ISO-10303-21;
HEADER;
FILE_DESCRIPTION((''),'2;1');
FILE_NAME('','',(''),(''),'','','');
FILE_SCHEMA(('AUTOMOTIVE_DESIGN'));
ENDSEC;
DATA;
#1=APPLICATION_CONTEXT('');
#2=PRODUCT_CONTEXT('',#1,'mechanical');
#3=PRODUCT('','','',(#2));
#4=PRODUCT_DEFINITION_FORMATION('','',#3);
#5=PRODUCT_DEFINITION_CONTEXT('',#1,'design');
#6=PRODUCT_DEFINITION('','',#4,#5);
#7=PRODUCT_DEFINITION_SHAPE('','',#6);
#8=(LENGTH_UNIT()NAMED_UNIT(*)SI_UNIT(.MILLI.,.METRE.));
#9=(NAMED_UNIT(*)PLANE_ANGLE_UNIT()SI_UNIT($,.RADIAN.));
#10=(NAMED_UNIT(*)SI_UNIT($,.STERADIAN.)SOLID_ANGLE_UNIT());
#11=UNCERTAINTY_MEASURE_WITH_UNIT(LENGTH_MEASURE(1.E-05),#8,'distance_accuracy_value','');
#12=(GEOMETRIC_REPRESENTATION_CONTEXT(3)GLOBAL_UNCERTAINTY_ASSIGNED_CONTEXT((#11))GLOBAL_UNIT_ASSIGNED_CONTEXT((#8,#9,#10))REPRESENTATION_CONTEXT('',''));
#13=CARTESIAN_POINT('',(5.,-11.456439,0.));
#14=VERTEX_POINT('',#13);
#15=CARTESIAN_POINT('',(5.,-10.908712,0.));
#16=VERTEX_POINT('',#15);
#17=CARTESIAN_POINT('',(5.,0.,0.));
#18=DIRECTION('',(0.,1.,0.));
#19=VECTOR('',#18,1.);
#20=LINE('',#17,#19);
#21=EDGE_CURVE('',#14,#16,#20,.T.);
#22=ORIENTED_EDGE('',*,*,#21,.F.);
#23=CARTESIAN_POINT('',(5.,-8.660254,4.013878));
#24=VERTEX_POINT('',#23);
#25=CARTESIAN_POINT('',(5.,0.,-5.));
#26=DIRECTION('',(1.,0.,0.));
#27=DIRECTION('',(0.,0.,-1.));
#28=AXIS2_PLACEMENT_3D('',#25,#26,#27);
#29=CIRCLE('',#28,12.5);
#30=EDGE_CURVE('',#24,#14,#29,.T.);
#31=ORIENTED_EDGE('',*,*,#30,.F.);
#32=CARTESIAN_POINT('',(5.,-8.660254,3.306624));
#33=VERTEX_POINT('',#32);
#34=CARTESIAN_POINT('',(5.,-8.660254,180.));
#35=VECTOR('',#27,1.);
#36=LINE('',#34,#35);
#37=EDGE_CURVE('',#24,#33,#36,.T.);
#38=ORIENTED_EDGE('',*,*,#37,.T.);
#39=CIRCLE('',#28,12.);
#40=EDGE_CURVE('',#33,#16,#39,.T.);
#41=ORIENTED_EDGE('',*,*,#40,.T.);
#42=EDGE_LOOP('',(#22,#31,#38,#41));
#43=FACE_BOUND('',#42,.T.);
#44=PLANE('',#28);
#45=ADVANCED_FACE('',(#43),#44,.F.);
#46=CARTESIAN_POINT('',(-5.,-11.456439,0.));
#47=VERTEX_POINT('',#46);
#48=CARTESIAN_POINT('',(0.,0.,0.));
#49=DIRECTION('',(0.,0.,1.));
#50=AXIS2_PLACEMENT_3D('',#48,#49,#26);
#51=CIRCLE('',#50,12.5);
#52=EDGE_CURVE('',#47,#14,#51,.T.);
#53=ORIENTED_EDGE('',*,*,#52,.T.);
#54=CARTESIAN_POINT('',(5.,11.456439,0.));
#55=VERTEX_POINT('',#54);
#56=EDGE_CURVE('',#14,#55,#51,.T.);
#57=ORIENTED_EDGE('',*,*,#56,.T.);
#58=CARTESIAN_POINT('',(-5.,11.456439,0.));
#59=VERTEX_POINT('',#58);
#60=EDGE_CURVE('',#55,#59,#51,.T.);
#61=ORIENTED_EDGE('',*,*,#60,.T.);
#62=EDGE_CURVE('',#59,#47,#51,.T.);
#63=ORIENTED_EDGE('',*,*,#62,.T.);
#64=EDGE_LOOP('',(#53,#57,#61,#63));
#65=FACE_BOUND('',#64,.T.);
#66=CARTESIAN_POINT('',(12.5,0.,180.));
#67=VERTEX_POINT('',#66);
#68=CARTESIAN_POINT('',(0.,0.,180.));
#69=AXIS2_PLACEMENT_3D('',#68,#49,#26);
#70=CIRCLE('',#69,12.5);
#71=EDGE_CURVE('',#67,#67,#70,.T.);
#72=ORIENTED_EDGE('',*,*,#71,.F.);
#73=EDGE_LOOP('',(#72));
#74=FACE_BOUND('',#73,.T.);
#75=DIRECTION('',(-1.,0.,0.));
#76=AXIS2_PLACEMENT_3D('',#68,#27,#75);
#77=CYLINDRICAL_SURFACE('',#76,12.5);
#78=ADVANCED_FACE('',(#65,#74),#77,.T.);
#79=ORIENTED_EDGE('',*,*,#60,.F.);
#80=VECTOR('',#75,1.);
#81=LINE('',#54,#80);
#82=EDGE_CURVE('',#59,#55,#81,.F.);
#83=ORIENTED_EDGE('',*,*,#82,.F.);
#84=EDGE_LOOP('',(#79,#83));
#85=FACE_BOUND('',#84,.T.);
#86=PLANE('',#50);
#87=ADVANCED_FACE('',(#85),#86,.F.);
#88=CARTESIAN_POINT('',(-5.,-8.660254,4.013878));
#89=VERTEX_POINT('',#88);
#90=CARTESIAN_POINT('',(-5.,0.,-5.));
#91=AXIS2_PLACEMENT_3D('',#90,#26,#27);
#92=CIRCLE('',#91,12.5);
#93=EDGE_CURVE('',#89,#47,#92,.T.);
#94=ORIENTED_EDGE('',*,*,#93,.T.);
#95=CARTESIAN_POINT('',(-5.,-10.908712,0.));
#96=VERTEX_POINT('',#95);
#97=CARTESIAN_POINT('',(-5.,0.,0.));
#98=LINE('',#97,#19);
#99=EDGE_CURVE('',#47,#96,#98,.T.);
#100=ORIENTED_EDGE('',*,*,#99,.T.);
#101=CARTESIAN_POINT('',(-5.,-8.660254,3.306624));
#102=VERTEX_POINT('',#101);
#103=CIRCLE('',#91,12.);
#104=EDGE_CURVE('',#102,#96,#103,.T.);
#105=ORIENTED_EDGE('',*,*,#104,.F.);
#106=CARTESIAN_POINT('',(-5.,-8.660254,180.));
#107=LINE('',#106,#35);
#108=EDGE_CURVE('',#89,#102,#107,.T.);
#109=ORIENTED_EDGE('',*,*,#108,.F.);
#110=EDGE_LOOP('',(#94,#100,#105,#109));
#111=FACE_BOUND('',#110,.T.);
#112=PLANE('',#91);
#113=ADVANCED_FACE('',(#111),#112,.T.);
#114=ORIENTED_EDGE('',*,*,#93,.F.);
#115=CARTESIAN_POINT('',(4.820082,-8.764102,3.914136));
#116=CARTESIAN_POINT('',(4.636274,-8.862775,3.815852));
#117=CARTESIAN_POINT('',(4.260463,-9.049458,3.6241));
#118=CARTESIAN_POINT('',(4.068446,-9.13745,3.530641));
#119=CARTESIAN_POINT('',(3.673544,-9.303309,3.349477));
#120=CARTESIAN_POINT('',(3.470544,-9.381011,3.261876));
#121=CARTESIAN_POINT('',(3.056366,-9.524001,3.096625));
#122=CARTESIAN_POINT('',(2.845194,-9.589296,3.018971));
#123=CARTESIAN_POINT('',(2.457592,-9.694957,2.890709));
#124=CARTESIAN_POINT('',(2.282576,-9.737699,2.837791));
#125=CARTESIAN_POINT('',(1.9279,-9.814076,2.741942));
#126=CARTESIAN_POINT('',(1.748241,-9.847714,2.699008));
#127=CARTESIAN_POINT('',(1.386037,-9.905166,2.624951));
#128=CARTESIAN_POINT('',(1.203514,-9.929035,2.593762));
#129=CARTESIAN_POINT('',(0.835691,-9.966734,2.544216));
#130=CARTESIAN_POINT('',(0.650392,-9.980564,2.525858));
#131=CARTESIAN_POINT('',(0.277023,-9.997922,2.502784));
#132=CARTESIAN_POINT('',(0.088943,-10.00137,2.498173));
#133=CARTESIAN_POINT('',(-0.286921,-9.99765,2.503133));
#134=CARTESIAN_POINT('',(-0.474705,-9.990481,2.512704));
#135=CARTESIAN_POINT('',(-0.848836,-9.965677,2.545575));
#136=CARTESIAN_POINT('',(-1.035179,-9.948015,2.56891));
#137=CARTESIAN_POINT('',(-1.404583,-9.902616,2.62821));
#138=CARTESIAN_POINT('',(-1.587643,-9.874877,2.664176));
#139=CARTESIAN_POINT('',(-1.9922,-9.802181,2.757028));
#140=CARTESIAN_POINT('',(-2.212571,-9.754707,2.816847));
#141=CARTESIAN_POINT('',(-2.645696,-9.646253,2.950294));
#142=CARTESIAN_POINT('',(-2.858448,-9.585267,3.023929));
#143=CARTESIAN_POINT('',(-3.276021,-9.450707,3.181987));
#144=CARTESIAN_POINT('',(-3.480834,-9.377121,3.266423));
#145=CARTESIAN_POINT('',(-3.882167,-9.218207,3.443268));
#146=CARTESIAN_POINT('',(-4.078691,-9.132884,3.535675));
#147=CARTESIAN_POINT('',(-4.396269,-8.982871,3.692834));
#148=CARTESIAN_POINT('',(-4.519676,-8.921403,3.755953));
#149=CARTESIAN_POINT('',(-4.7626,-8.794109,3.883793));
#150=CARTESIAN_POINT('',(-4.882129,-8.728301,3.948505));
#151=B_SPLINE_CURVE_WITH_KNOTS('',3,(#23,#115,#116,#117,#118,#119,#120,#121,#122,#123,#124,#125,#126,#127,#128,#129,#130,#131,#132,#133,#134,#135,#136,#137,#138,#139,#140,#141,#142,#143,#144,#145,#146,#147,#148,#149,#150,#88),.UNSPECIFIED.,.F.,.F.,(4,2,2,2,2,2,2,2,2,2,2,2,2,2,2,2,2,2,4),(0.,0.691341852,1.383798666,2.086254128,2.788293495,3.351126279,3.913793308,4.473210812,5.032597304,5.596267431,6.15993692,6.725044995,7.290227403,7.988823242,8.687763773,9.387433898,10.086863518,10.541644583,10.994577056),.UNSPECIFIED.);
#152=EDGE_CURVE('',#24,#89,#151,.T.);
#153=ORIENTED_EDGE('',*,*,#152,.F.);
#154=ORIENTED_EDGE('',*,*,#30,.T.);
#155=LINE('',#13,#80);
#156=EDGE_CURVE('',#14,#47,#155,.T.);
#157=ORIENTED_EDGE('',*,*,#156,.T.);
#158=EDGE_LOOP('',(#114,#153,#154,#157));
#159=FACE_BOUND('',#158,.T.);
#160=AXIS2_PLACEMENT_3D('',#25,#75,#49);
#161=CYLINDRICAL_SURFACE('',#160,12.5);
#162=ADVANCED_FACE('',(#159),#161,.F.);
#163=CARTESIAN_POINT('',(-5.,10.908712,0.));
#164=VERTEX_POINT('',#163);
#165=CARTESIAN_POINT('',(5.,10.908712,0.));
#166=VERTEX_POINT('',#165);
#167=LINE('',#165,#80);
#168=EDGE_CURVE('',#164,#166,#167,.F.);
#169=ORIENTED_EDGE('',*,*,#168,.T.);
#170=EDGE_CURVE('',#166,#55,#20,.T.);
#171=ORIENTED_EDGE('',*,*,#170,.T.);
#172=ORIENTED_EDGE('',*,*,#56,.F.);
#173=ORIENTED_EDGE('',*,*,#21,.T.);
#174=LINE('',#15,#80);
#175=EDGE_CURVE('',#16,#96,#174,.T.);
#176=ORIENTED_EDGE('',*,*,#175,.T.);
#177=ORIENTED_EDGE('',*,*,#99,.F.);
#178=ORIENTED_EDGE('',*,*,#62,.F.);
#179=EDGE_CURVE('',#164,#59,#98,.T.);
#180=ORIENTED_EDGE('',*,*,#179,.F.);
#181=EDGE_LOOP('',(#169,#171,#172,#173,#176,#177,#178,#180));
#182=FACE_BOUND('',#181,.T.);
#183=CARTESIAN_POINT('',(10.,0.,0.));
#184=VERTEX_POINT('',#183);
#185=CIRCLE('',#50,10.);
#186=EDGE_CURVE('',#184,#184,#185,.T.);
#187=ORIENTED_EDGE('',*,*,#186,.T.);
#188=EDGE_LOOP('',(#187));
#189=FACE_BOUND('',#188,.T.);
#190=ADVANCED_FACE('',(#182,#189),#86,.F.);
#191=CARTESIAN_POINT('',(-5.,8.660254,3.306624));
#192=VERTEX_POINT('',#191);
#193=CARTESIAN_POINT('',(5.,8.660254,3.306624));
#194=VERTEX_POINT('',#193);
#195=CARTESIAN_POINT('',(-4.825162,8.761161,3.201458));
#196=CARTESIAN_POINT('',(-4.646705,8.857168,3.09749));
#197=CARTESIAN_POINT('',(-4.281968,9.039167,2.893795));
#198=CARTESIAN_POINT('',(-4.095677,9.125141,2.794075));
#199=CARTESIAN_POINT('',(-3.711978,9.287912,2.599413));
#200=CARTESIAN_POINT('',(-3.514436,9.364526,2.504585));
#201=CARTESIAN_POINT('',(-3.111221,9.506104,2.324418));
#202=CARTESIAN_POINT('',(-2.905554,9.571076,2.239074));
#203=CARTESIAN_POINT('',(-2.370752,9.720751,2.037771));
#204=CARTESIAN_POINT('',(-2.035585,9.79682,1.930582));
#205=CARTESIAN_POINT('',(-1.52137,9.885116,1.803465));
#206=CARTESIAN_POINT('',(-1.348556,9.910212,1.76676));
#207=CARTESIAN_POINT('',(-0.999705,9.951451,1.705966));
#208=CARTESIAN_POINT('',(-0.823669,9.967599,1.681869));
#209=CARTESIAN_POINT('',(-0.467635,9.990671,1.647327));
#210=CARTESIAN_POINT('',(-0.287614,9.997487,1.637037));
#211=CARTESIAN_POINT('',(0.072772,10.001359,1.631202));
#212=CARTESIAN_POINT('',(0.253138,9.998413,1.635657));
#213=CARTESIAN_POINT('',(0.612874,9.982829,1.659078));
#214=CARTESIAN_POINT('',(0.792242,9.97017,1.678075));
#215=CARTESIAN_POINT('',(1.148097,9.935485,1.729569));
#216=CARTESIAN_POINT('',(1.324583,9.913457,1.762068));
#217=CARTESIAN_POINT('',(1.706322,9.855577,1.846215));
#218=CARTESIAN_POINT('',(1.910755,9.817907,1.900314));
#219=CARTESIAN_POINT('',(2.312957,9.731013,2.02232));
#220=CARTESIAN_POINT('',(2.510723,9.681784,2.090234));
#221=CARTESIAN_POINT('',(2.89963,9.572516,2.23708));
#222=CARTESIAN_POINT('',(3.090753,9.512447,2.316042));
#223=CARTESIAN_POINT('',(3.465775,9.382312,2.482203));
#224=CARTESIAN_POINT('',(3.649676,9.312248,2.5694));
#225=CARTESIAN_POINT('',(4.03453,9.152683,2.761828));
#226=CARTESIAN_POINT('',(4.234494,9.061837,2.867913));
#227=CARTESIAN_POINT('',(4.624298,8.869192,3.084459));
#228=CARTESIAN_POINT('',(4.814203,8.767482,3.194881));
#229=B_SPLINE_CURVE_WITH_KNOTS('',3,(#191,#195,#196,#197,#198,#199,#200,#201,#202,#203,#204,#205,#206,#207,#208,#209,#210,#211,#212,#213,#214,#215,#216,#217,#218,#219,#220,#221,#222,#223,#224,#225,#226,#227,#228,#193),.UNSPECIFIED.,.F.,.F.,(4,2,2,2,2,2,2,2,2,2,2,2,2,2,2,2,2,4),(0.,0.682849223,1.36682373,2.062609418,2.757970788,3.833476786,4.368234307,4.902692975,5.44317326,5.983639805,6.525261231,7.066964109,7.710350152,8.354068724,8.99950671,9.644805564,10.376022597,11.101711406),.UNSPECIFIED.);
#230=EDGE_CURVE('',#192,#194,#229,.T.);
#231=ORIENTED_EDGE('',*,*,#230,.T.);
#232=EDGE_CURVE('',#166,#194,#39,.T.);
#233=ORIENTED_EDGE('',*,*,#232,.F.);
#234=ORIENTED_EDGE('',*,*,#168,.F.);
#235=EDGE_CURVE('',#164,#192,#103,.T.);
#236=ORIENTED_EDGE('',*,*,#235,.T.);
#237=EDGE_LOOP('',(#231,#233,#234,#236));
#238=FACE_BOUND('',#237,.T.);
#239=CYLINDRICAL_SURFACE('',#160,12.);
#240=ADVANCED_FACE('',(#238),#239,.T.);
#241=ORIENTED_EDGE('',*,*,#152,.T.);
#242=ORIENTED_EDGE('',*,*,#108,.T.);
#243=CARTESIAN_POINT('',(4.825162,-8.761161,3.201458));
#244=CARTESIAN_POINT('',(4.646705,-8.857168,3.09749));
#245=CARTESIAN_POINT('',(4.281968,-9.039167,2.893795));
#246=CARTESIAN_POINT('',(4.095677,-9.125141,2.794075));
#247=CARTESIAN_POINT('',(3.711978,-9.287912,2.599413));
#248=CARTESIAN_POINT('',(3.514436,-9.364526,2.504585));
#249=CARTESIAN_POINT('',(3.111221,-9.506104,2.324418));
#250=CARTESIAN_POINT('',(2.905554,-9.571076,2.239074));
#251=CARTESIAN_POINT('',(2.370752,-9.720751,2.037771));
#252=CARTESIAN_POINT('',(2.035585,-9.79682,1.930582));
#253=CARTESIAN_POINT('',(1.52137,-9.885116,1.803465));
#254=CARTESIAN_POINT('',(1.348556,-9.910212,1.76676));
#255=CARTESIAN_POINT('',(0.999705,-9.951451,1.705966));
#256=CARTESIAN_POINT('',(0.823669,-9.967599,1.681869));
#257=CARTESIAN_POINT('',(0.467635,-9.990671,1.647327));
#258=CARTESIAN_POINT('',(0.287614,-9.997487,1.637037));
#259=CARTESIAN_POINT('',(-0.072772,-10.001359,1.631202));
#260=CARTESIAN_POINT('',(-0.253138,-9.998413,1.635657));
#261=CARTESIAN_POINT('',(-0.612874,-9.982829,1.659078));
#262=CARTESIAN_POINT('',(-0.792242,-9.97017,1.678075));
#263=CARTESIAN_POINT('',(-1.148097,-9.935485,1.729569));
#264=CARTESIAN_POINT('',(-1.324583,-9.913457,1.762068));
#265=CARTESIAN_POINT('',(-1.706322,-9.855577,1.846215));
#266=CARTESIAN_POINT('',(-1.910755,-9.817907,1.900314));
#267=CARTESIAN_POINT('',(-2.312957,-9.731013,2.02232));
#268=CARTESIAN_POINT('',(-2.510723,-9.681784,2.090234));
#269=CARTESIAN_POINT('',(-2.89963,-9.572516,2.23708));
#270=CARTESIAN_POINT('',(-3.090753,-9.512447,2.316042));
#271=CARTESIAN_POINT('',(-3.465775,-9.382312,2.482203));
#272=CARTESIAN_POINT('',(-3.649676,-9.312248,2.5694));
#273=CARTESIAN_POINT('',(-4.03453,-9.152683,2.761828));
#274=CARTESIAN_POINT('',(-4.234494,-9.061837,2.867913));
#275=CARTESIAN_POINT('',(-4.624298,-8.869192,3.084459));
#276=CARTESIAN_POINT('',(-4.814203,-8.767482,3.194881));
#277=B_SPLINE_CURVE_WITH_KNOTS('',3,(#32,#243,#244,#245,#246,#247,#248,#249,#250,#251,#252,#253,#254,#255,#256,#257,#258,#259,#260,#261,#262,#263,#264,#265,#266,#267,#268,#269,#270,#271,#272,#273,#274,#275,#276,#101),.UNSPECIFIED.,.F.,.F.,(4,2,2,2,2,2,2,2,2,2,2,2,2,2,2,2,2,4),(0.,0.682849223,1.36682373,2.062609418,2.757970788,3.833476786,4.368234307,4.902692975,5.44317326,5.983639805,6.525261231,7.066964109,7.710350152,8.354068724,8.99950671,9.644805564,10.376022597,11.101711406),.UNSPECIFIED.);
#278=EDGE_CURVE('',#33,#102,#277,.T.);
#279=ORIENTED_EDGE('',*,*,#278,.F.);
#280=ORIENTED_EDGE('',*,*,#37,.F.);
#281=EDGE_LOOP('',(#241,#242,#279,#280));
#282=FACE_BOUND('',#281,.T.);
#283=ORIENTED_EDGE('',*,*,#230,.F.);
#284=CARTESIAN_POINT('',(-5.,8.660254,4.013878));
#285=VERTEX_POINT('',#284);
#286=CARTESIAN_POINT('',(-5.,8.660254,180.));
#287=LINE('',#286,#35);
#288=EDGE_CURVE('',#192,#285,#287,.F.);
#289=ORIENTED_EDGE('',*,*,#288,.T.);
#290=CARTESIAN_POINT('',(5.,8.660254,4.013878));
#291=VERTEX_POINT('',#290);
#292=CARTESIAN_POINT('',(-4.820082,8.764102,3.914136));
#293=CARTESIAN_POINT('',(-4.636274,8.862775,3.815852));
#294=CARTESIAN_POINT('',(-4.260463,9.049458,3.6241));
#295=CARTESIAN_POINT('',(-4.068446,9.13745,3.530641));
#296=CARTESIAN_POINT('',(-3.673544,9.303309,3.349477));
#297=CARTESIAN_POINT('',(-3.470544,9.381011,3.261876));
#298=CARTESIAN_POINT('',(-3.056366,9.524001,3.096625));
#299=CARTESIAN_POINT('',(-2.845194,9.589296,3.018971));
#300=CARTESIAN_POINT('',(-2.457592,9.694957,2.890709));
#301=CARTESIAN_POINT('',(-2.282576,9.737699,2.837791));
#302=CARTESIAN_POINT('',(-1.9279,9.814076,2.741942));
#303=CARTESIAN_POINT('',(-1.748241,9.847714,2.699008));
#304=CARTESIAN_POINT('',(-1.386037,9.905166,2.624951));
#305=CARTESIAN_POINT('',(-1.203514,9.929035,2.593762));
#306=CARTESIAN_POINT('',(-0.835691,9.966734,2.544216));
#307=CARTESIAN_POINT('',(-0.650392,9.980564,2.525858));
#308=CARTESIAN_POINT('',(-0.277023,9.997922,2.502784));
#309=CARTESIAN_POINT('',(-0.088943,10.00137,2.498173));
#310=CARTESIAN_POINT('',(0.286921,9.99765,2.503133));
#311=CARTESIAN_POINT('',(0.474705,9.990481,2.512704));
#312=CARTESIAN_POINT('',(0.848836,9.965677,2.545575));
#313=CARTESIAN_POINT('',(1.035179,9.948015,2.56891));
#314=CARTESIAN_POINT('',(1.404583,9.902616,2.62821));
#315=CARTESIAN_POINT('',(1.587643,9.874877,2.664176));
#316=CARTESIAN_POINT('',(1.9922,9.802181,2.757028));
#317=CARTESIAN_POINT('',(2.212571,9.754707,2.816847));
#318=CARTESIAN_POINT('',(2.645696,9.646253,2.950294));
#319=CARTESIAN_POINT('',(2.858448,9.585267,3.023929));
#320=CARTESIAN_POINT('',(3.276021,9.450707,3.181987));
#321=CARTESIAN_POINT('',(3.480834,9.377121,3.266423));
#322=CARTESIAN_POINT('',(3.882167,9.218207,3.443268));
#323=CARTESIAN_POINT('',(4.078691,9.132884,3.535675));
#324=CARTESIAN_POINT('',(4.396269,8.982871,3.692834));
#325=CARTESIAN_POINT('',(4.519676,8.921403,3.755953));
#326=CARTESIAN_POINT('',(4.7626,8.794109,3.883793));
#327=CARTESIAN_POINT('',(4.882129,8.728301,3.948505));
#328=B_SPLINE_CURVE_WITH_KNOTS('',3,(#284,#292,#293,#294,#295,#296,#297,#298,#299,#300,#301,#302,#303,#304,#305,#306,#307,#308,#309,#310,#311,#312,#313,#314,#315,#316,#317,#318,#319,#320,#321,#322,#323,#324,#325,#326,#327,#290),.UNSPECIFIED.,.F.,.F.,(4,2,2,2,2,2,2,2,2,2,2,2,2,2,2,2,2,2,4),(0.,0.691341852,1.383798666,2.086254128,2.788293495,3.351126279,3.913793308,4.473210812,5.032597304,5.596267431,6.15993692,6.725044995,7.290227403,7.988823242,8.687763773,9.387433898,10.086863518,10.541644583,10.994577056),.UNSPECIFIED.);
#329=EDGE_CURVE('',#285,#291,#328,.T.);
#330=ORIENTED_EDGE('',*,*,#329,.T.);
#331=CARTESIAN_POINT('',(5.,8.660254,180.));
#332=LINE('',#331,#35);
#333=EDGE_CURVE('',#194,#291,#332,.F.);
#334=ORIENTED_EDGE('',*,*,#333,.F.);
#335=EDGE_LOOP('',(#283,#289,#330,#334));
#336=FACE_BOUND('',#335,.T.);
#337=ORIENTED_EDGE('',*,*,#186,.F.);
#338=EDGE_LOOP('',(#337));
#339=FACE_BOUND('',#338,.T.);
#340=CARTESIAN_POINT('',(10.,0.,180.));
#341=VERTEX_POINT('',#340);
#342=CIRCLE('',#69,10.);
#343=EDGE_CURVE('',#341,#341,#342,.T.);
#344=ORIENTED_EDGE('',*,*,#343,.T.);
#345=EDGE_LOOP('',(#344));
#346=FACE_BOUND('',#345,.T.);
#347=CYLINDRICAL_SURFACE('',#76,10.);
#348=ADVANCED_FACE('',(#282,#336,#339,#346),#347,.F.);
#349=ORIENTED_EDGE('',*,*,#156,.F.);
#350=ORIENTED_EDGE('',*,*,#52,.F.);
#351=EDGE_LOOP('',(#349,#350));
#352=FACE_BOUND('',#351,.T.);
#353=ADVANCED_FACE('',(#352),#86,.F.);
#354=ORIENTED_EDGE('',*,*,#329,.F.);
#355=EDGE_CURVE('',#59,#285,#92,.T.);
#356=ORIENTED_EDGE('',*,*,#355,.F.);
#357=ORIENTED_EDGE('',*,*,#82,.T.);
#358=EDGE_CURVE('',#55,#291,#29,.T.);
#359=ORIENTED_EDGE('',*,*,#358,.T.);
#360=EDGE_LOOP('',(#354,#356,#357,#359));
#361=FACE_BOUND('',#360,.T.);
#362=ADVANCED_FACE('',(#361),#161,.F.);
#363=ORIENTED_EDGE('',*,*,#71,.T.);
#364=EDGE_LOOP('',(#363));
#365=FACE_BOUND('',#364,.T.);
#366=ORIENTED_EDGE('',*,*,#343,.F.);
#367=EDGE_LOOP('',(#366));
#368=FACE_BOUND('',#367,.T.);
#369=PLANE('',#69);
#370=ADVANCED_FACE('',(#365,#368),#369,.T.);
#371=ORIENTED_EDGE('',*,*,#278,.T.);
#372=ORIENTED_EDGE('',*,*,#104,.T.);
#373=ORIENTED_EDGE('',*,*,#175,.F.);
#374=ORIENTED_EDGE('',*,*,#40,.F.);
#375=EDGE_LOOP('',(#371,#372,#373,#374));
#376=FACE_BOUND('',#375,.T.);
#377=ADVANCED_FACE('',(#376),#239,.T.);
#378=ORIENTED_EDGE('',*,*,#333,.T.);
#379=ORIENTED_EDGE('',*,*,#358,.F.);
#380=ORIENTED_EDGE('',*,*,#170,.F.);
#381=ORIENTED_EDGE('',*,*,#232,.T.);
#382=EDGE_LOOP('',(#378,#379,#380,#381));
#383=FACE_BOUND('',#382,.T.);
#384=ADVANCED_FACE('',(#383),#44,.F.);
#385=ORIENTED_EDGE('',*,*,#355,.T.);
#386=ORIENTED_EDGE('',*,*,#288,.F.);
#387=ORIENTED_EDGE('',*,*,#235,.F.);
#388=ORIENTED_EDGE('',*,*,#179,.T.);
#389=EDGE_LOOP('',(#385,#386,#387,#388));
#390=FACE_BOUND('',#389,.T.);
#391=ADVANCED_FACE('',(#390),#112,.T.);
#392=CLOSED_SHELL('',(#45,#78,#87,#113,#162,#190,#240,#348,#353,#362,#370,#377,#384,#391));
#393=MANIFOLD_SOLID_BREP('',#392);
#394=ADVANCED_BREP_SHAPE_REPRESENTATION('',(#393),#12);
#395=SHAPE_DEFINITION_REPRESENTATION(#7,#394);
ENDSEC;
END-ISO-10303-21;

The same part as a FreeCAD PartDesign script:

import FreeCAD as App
import Part
import Sketcher
Q = App.Units.Quantity

doc = App.newDocument("Part")
body = doc.addObject("PartDesign::Body", "Body")

sketch1 = doc.addObject("Sketcher::SketchObject", "Sketch")
body.addObject(sketch1)
sketch1.AttachmentSupport = (doc.XY_Plane, [""])
sketch1.MapMode = "FlatFace"
sketch1.addGeometry(Part.Circle(App.Vector(0, 0, 0), App.Vector(0, 0, 1), 12), False)
sketch1.addGeometry(Part.Circle(App.Vector(0, 0, 0), App.Vector(0, 0, 1), 10), False)
sketch1.addConstraint(Sketcher.Constraint("Coincident", 0, 3, -1, 1))
sketch1.addConstraint(Sketcher.Constraint("Coincident", 1, 3, -1, 1))
sketch1.addConstraint(Sketcher.Constraint("Diameter", 0, Q("25 mm")))
sketch1.addConstraint(Sketcher.Constraint("Diameter", 1, Q("20 mm")))
pad1 = doc.addObject("PartDesign::Pad", "Pad")
body.addObject(pad1)
pad1.Profile = sketch1
pad1.Length = 180

sketch2 = doc.addObject("Sketcher::SketchObject", "Sketch001")
body.addObject(sketch2)
sketch2.AttachmentSupport = (doc.YZ_Plane, [""])
sketch2.MapMode = "FlatFace"
sketch2.addGeometry(Part.Circle(App.Vector(0, -5, 0), App.Vector(0, 0, 1), 12), False)
sketch2.addGeometry(Part.Circle(App.Vector(0, -5, 0), App.Vector(0, 0, 1), 12), False)
sketch2.addConstraint(Sketcher.Constraint("Coincident", 1, 3, 0, 3))
sketch2.addConstraint(Sketcher.Constraint("PointOnObject", 0, 3, -2))
sketch2.addConstraint(Sketcher.Constraint("Diameter", 0, Q("25 mm")))
sketch2.addConstraint(Sketcher.Constraint("Diameter", 1, Q("24 mm")))
sketch2.addConstraint(Sketcher.Constraint("DistanceY", 0, 3, -1, 1, Q("5 mm")))
pocket1 = doc.addObject("PartDesign::Pocket", "Pocket")
body.addObject(pocket1)
pocket1.Profile = sketch2
pocket1.Type = "TwoLengths"
pocket1.Length = 5
pocket1.Length2 = 5
pocket1.Reversed = True

doc.recompute()
